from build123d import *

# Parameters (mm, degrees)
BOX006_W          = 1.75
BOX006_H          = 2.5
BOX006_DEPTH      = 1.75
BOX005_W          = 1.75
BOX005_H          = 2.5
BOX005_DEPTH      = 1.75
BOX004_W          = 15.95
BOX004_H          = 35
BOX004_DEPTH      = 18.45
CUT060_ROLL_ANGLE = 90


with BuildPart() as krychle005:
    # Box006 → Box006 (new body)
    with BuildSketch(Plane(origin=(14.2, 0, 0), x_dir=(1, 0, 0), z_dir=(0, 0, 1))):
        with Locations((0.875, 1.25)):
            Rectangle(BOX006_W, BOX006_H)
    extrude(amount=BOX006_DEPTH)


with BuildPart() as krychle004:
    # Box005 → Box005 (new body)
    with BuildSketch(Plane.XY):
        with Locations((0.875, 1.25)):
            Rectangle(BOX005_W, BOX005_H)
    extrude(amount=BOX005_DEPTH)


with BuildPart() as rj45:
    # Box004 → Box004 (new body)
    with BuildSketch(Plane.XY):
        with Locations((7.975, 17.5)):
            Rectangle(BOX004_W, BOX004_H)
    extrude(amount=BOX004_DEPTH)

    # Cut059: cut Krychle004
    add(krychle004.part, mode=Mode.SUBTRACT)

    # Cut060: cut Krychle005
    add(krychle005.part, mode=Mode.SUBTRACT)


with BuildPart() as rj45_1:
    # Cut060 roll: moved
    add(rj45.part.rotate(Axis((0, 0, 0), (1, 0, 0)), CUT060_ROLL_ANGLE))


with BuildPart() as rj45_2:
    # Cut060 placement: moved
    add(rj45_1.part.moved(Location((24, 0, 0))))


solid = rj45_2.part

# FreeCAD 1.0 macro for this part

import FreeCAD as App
import Part
import Sketcher

V = App.Vector
Q = App.Units.Quantity

doc = App.newDocument("Part")
body = doc.addObject("PartDesign::Body", "Body")

sketch1 = doc.addObject("Sketcher::SketchObject", "Sketch")
body.addObject(sketch1)
sketch1.AttachmentSupport = (doc.XY_Plane, [""])
sketch1.MapMode = "FlatFace"
sketch1.addGeometry([
    Part.LineSegment(V(14.2, 2.5, 0), V(14.2, 0, 0)),
    Part.LineSegment(V(14.2, 0, 0), V(15.9, 0, 0)),
    Part.LineSegment(V(15.9, 0, 0), V(15.9, 2.5, 0)),
    Part.LineSegment(V(15.9, 2.5, 0), V(14.2, 2.5, 0)),
], False)
sketch1.addConstraint([
    Sketcher.Constraint("Coincident", 0, 2, 1, 1),
    Sketcher.Constraint("Coincident", 1, 2, 2, 1),
    Sketcher.Constraint("Coincident", 2, 2, 3, 1),
    Sketcher.Constraint("Coincident", 3, 2, 0, 1),
    Sketcher.Constraint("Vertical", 0),
    Sketcher.Constraint("Horizontal", 1),
    Sketcher.Constraint("Vertical", 2),
    Sketcher.Constraint("Horizontal", 3),
    Sketcher.Constraint("PointOnObject", 0, 2, -1),
    Sketcher.Constraint("DistanceY", 0, 2, 0, 1, Q("2.5 mm")),
    Sketcher.Constraint("DistanceX", 1, 1, 1, 2, Q("1.75 mm")),
    Sketcher.Constraint("DistanceX", -1, 1, 0, 2, Q("14.2 mm")),
])
pad1 = doc.addObject("PartDesign::Pad", "Pad")
body.addObject(pad1)
pad1.Profile = sketch1
pad1.Length = 1.75
body2 = doc.addObject("PartDesign::Body", "Body001")

sketch2 = doc.addObject("Sketcher::SketchObject", "Sketch001")
body2.addObject(sketch2)
sketch2.AttachmentSupport = (doc.getObject("XY_Plane001"), [""])
sketch2.MapMode = "FlatFace"
sketch2.addGeometry([
    Part.LineSegment(V(0, 2.5, 0), V(0, 0, 0)),
    Part.LineSegment(V(0, 0, 0), V(1.8, 0, 0)),
    Part.LineSegment(V(1.8, 0, 0), V(1.8, 2.5, 0)),
    Part.LineSegment(V(1.8, 2.5, 0), V(0, 2.5, 0)),
], False)
sketch2.addConstraint([
    Sketcher.Constraint("Coincident", 0, 2, 1, 1),
    Sketcher.Constraint("Coincident", 1, 2, 2, 1),
    Sketcher.Constraint("Coincident", 2, 2, 3, 1),
    Sketcher.Constraint("Coincident", 3, 2, 0, 1),
    Sketcher.Constraint("Vertical", 0),
    Sketcher.Constraint("Horizontal", 1),
    Sketcher.Constraint("Vertical", 2),
    Sketcher.Constraint("Horizontal", 3),
    Sketcher.Constraint("Coincident", 0, 2, -1, 1),
    Sketcher.Constraint("DistanceY", 0, 2, 0, 1, Q("2.5 mm")),
    Sketcher.Constraint("DistanceX", 1, 1, 1, 2, Q("1.75 mm")),
])
pad2 = doc.addObject("PartDesign::Pad", "Pad001")
body2.addObject(pad2)
pad2.Profile = sketch2
pad2.Length = 1.75
body3 = doc.addObject("PartDesign::Body", "Body002")

sketch3 = doc.addObject("Sketcher::SketchObject", "Sketch002")
body3.addObject(sketch3)
sketch3.AttachmentSupport = (doc.getObject("XY_Plane002"), [""])
sketch3.MapMode = "FlatFace"
sketch3.addGeometry([
    Part.LineSegment(V(0, 35, 0), V(0, 0, 0)),
    Part.LineSegment(V(0, 0, 0), V(16, 0, 0)),
    Part.LineSegment(V(16, 0, 0), V(16, 35, 0)),
    Part.LineSegment(V(16, 35, 0), V(0, 35, 0)),
], False)
sketch3.addConstraint([
    Sketcher.Constraint("Coincident", 0, 2, 1, 1),
    Sketcher.Constraint("Coincident", 1, 2, 2, 1),
    Sketcher.Constraint("Coincident", 2, 2, 3, 1),
    Sketcher.Constraint("Coincident", 3, 2, 0, 1),
    Sketcher.Constraint("Vertical", 0),
    Sketcher.Constraint("Horizontal", 1),
    Sketcher.Constraint("Vertical", 2),
    Sketcher.Constraint("Horizontal", 3),
    Sketcher.Constraint("Coincident", 0, 2, -1, 1),
    Sketcher.Constraint("DistanceY", 0, 2, 0, 1, Q("35 mm")),
    Sketcher.Constraint("DistanceX", 1, 1, 1, 2, Q("15.95 mm")),
])
pad3 = doc.addObject("PartDesign::Pad", "Pad002")
body3.addObject(pad3)
pad3.Profile = sketch3
pad3.Length = 18.45
doc.recompute()

boolean = doc.addObject("PartDesign::Boolean", "Boolean")
body3.addObject(boolean)
boolean.Type = "Cut"
boolean.addObjects([body2])
doc.recompute()

boolean2 = doc.addObject("PartDesign::Boolean", "Boolean001")
body3.addObject(boolean2)
boolean2.Type = "Cut"
boolean2.addObjects([body])
body4 = doc.addObject("PartDesign::Body", "Body003")
doc.recompute()

body3.Placement = App.Placement(V(0, 0, 0), App.Rotation(V(1, 0, 0), 90))
boolean3 = doc.addObject("PartDesign::Boolean", "Boolean002")
body4.addObject(boolean3)
boolean3.Type = "Fuse"
boolean3.addObjects([body3])
body5 = doc.addObject("PartDesign::Body", "Body004")
doc.recompute()

body4.Placement = App.Placement(V(24, 0, 0), App.Rotation(V(0, 0, 1), 0))
boolean4 = doc.addObject("PartDesign::Boolean", "Boolean003")
body5.addObject(boolean4)
boolean4.Type = "Fuse"
boolean4.addObjects([body4])

doc.recompute()
